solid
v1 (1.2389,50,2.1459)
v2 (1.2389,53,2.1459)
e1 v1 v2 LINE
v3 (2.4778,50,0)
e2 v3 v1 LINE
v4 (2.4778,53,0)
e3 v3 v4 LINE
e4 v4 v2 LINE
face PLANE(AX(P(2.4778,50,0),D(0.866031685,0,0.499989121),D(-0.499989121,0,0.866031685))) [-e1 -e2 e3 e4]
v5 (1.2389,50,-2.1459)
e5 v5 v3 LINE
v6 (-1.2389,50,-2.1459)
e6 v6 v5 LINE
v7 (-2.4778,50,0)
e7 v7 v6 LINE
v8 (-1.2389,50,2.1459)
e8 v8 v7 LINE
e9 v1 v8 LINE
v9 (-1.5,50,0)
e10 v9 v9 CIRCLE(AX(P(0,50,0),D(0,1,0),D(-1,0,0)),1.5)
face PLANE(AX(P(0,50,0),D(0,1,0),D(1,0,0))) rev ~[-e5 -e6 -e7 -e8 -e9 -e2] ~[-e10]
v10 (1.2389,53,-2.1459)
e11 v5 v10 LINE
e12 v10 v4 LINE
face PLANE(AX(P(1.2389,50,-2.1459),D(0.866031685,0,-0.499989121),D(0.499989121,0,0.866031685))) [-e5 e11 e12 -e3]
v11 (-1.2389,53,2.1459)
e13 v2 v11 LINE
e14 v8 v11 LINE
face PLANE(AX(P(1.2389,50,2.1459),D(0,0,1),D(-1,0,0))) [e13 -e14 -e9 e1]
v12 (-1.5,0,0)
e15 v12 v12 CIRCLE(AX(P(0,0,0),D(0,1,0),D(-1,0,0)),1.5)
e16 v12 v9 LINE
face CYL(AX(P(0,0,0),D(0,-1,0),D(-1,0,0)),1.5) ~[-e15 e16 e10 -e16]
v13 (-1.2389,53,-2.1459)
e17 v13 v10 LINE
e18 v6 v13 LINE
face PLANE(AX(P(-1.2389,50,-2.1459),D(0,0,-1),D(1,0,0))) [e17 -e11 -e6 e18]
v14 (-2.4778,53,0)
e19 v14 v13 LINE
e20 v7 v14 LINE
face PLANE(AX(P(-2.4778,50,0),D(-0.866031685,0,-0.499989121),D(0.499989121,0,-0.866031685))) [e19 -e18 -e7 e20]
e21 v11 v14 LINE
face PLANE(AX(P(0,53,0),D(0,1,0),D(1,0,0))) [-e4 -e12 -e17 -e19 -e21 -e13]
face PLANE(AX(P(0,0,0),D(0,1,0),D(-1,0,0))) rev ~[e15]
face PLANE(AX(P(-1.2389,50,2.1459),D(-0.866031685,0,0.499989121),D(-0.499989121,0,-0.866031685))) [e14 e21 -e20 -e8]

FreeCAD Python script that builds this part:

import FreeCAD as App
import Part
import Sketcher
Q = App.Units.Quantity

doc = App.newDocument("Part")
body = doc.addObject("PartDesign::Body", "Body")

sketch1 = body.newObject("Sketcher::SketchObject", "Sketch")
sketch1.AttachmentSupport = (doc.getObject("XZ_Plane"), [""])
sketch1.MapMode = "FlatFace"
sketch1.addGeometry(Part.Circle(App.Vector(0, 0, 0), App.Vector(0, 0, 1), 1.5), False)
sketch1.addConstraint(Sketcher.Constraint("Coincident", 0, 3, -1, 1))
sketch1.addConstraint(Sketcher.Constraint("Diameter", 0, Q("3 mm")))
pad1 = body.newObject("PartDesign::Pad", "Pad")
pad1.Profile = sketch1
pad1.Length = 50
pad1.Reversed = True

sketch2 = body.newObject("Sketcher::SketchObject", "Sketch001")
sketch2.AttachmentSupport = (doc.getObject("XZ_Plane"), [""])
sketch2.MapMode = "FlatFace"
sketch2.AttachmentOffset = App.Placement(App.Vector(0, 0, -50), App.Rotation())
sketch2.addGeometry(Part.LineSegment(App.Vector(1.2, 2.1, 0), App.Vector(2.5, 0, 0)), False)
sketch2.addGeometry(Part.LineSegment(App.Vector(2.5, 0, 0), App.Vector(1.2, -2.1, 0)), False)
sketch2.addGeometry(Part.LineSegment(App.Vector(1.2, -2.1, 0), App.Vector(-1.2, -2.1, 0)), False)
sketch2.addGeometry(Part.LineSegment(App.Vector(-1.2, -2.1, 0), App.Vector(-2.5, 0, 0)), False)
sketch2.addGeometry(Part.LineSegment(App.Vector(-2.5, 0, 0), App.Vector(-1.2, 2.1, 0)), False)
sketch2.addGeometry(Part.LineSegment(App.Vector(-1.2, 2.1, 0), App.Vector(1.2, 2.1, 0)), False)
sketch2.addConstraint(Sketcher.Constraint("Coincident", 0, 2, 1, 1))
sketch2.addConstraint(Sketcher.Constraint("Coincident", 1, 2, 2, 1))
sketch2.addConstraint(Sketcher.Constraint("Coincident", 2, 2, 3, 1))
sketch2.addConstraint(Sketcher.Constraint("Coincident", 3, 2, 4, 1))
sketch2.addConstraint(Sketcher.Constraint("Coincident", 4, 2, 5, 1))
sketch2.addConstraint(Sketcher.Constraint("Coincident", 5, 2, 0, 1))
sketch2.addConstraint(Sketcher.Constraint("Horizontal", 2))
sketch2.addConstraint(Sketcher.Constraint("Horizontal", 5))
sketch2.addConstraint(Sketcher.Constraint("Symmetric", 0, 2, 3, 2, -1, 1))
sketch2.addConstraint(Sketcher.Constraint("Symmetric", 1, 2, 4, 2, -1, 1))
sketch2.addConstraint(Sketcher.Constraint("PointOnObject", 0, 2, -1))
sketch2.addConstraint(Sketcher.Constraint("Parallel", 0, 3))
sketch2.addConstraint(Sketcher.Constraint("Vertical", 2, 2, 4, 2))
sketch2.addConstraint(Sketcher.Constraint("Angle", 0, Q("-60.0007 deg")))
sketch2.addConstraint(Sketcher.Constraint("DistanceX", 2, 2, 2, 1, Q("2.4778 mm")))
sketch2.addConstraint(Sketcher.Constraint("DistanceY", 1, 2, -1, 1, Q("2.146 mm")))
pad2 = body.newObject("PartDesign::Pad", "Pad001")
pad2.Profile = sketch2
pad2.Length = 3
pad2.Reversed = True

doc.recompute()
